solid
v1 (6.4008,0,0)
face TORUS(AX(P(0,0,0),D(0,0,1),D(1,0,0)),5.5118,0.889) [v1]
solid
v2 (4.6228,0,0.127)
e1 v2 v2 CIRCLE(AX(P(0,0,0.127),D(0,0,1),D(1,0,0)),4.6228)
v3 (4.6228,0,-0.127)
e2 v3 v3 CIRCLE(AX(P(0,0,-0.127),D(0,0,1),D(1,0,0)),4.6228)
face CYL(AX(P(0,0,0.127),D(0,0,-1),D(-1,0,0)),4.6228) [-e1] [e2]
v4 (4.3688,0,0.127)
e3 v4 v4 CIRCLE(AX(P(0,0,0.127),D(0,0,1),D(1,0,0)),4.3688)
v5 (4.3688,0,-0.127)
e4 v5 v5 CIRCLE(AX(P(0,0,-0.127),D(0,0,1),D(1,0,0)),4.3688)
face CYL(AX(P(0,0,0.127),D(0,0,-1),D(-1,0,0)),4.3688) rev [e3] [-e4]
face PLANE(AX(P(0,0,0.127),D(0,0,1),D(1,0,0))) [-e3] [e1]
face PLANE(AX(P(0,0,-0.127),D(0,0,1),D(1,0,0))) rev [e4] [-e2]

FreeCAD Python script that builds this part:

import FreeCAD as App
import Part
import Sketcher
Q = App.Units.Quantity

doc = App.newDocument("Part")
params = doc.addObject("Spreadsheet::Sheet", "Params")
for row, (alias, value) in enumerate([
    ("sketch1_diameter", "0.07 in"),
    ("revolution_angle", "360 deg"),
    ("sketch2_diameter", "0.364 in"),
    ("sketch2_diameter2", "0.344 in"),
    ("pad1_length", "0.01 in"),
], start=1):
    params.set(f"A{row}", alias)
    params.set(f"B{row}", "=" + value)
    params.setAlias(f"B{row}", alias)

body = doc.addObject("PartDesign::Body", "Body")

# Sketch on YZ plane
sketch1 = doc.addObject("Sketcher::SketchObject", "Sketch")
body.addObject(sketch1)
sketch1.AttachmentSupport = (doc.YZ_Plane, [""])
sketch1.MapMode = "FlatFace"
sketch1.addGeometry(Part.Circle(App.Vector(-5.5118, 0, 0), App.Vector(0, 0, 1), 0.889), False)
sketch1.addConstraint(Sketcher.Constraint("PointOnObject", 0, 3, -1))
sketch1.addConstraint(Sketcher.Constraint("Diameter", 0, Q("0.07 in")))
sketch1.addConstraint(Sketcher.Constraint("DistanceX", 0, 3, -1, 1, Q("0.217 in")))
sketch1.setExpression("Constraints[1]", "Params.sketch1_diameter")
revolution = doc.addObject("PartDesign::Revolution", "Revolution")
body.addObject(revolution)
revolution.Profile = sketch1
revolution.ReferenceAxis = (sketch1, ["V_Axis"])
revolution.setExpression("Angle", "Params.revolution_angle")
body2 = doc.addObject("PartDesign::Body", "Body001")

# Sketch on XY plane
sketch2 = doc.addObject("Sketcher::SketchObject", "Sketch001")
body2.addObject(sketch2)
sketch2.AttachmentSupport = (doc.getObject("XY_Plane001"), [""])
sketch2.MapMode = "FlatFace"
sketch2.addGeometry(Part.Circle(App.Vector(0, 0, 0), App.Vector(0, 0, 1), 4.6228), False)
sketch2.addGeometry(Part.Circle(App.Vector(0, 0, 0), App.Vector(0, 0, 1), 4.3688), False)
sketch2.addConstraint(Sketcher.Constraint("Coincident", 0, 3, -1, 1))
sketch2.addConstraint(Sketcher.Constraint("Coincident", 1, 3, -1, 1))
sketch2.addConstraint(Sketcher.Constraint("Diameter", 0, Q("0.364 in")))
sketch2.addConstraint(Sketcher.Constraint("Diameter", 1, Q("0.344 in")))
sketch2.setExpression("Constraints[2]", "Params.sketch2_diameter")
sketch2.setExpression("Constraints[3]", "Params.sketch2_diameter2")
pad1 = doc.addObject("PartDesign::Pad", "Pad")
body2.addObject(pad1)
pad1.Profile = sketch2
pad1.setExpression("Length", "Params.pad1_length")
pad1.Midplane = True

doc.recompute()
